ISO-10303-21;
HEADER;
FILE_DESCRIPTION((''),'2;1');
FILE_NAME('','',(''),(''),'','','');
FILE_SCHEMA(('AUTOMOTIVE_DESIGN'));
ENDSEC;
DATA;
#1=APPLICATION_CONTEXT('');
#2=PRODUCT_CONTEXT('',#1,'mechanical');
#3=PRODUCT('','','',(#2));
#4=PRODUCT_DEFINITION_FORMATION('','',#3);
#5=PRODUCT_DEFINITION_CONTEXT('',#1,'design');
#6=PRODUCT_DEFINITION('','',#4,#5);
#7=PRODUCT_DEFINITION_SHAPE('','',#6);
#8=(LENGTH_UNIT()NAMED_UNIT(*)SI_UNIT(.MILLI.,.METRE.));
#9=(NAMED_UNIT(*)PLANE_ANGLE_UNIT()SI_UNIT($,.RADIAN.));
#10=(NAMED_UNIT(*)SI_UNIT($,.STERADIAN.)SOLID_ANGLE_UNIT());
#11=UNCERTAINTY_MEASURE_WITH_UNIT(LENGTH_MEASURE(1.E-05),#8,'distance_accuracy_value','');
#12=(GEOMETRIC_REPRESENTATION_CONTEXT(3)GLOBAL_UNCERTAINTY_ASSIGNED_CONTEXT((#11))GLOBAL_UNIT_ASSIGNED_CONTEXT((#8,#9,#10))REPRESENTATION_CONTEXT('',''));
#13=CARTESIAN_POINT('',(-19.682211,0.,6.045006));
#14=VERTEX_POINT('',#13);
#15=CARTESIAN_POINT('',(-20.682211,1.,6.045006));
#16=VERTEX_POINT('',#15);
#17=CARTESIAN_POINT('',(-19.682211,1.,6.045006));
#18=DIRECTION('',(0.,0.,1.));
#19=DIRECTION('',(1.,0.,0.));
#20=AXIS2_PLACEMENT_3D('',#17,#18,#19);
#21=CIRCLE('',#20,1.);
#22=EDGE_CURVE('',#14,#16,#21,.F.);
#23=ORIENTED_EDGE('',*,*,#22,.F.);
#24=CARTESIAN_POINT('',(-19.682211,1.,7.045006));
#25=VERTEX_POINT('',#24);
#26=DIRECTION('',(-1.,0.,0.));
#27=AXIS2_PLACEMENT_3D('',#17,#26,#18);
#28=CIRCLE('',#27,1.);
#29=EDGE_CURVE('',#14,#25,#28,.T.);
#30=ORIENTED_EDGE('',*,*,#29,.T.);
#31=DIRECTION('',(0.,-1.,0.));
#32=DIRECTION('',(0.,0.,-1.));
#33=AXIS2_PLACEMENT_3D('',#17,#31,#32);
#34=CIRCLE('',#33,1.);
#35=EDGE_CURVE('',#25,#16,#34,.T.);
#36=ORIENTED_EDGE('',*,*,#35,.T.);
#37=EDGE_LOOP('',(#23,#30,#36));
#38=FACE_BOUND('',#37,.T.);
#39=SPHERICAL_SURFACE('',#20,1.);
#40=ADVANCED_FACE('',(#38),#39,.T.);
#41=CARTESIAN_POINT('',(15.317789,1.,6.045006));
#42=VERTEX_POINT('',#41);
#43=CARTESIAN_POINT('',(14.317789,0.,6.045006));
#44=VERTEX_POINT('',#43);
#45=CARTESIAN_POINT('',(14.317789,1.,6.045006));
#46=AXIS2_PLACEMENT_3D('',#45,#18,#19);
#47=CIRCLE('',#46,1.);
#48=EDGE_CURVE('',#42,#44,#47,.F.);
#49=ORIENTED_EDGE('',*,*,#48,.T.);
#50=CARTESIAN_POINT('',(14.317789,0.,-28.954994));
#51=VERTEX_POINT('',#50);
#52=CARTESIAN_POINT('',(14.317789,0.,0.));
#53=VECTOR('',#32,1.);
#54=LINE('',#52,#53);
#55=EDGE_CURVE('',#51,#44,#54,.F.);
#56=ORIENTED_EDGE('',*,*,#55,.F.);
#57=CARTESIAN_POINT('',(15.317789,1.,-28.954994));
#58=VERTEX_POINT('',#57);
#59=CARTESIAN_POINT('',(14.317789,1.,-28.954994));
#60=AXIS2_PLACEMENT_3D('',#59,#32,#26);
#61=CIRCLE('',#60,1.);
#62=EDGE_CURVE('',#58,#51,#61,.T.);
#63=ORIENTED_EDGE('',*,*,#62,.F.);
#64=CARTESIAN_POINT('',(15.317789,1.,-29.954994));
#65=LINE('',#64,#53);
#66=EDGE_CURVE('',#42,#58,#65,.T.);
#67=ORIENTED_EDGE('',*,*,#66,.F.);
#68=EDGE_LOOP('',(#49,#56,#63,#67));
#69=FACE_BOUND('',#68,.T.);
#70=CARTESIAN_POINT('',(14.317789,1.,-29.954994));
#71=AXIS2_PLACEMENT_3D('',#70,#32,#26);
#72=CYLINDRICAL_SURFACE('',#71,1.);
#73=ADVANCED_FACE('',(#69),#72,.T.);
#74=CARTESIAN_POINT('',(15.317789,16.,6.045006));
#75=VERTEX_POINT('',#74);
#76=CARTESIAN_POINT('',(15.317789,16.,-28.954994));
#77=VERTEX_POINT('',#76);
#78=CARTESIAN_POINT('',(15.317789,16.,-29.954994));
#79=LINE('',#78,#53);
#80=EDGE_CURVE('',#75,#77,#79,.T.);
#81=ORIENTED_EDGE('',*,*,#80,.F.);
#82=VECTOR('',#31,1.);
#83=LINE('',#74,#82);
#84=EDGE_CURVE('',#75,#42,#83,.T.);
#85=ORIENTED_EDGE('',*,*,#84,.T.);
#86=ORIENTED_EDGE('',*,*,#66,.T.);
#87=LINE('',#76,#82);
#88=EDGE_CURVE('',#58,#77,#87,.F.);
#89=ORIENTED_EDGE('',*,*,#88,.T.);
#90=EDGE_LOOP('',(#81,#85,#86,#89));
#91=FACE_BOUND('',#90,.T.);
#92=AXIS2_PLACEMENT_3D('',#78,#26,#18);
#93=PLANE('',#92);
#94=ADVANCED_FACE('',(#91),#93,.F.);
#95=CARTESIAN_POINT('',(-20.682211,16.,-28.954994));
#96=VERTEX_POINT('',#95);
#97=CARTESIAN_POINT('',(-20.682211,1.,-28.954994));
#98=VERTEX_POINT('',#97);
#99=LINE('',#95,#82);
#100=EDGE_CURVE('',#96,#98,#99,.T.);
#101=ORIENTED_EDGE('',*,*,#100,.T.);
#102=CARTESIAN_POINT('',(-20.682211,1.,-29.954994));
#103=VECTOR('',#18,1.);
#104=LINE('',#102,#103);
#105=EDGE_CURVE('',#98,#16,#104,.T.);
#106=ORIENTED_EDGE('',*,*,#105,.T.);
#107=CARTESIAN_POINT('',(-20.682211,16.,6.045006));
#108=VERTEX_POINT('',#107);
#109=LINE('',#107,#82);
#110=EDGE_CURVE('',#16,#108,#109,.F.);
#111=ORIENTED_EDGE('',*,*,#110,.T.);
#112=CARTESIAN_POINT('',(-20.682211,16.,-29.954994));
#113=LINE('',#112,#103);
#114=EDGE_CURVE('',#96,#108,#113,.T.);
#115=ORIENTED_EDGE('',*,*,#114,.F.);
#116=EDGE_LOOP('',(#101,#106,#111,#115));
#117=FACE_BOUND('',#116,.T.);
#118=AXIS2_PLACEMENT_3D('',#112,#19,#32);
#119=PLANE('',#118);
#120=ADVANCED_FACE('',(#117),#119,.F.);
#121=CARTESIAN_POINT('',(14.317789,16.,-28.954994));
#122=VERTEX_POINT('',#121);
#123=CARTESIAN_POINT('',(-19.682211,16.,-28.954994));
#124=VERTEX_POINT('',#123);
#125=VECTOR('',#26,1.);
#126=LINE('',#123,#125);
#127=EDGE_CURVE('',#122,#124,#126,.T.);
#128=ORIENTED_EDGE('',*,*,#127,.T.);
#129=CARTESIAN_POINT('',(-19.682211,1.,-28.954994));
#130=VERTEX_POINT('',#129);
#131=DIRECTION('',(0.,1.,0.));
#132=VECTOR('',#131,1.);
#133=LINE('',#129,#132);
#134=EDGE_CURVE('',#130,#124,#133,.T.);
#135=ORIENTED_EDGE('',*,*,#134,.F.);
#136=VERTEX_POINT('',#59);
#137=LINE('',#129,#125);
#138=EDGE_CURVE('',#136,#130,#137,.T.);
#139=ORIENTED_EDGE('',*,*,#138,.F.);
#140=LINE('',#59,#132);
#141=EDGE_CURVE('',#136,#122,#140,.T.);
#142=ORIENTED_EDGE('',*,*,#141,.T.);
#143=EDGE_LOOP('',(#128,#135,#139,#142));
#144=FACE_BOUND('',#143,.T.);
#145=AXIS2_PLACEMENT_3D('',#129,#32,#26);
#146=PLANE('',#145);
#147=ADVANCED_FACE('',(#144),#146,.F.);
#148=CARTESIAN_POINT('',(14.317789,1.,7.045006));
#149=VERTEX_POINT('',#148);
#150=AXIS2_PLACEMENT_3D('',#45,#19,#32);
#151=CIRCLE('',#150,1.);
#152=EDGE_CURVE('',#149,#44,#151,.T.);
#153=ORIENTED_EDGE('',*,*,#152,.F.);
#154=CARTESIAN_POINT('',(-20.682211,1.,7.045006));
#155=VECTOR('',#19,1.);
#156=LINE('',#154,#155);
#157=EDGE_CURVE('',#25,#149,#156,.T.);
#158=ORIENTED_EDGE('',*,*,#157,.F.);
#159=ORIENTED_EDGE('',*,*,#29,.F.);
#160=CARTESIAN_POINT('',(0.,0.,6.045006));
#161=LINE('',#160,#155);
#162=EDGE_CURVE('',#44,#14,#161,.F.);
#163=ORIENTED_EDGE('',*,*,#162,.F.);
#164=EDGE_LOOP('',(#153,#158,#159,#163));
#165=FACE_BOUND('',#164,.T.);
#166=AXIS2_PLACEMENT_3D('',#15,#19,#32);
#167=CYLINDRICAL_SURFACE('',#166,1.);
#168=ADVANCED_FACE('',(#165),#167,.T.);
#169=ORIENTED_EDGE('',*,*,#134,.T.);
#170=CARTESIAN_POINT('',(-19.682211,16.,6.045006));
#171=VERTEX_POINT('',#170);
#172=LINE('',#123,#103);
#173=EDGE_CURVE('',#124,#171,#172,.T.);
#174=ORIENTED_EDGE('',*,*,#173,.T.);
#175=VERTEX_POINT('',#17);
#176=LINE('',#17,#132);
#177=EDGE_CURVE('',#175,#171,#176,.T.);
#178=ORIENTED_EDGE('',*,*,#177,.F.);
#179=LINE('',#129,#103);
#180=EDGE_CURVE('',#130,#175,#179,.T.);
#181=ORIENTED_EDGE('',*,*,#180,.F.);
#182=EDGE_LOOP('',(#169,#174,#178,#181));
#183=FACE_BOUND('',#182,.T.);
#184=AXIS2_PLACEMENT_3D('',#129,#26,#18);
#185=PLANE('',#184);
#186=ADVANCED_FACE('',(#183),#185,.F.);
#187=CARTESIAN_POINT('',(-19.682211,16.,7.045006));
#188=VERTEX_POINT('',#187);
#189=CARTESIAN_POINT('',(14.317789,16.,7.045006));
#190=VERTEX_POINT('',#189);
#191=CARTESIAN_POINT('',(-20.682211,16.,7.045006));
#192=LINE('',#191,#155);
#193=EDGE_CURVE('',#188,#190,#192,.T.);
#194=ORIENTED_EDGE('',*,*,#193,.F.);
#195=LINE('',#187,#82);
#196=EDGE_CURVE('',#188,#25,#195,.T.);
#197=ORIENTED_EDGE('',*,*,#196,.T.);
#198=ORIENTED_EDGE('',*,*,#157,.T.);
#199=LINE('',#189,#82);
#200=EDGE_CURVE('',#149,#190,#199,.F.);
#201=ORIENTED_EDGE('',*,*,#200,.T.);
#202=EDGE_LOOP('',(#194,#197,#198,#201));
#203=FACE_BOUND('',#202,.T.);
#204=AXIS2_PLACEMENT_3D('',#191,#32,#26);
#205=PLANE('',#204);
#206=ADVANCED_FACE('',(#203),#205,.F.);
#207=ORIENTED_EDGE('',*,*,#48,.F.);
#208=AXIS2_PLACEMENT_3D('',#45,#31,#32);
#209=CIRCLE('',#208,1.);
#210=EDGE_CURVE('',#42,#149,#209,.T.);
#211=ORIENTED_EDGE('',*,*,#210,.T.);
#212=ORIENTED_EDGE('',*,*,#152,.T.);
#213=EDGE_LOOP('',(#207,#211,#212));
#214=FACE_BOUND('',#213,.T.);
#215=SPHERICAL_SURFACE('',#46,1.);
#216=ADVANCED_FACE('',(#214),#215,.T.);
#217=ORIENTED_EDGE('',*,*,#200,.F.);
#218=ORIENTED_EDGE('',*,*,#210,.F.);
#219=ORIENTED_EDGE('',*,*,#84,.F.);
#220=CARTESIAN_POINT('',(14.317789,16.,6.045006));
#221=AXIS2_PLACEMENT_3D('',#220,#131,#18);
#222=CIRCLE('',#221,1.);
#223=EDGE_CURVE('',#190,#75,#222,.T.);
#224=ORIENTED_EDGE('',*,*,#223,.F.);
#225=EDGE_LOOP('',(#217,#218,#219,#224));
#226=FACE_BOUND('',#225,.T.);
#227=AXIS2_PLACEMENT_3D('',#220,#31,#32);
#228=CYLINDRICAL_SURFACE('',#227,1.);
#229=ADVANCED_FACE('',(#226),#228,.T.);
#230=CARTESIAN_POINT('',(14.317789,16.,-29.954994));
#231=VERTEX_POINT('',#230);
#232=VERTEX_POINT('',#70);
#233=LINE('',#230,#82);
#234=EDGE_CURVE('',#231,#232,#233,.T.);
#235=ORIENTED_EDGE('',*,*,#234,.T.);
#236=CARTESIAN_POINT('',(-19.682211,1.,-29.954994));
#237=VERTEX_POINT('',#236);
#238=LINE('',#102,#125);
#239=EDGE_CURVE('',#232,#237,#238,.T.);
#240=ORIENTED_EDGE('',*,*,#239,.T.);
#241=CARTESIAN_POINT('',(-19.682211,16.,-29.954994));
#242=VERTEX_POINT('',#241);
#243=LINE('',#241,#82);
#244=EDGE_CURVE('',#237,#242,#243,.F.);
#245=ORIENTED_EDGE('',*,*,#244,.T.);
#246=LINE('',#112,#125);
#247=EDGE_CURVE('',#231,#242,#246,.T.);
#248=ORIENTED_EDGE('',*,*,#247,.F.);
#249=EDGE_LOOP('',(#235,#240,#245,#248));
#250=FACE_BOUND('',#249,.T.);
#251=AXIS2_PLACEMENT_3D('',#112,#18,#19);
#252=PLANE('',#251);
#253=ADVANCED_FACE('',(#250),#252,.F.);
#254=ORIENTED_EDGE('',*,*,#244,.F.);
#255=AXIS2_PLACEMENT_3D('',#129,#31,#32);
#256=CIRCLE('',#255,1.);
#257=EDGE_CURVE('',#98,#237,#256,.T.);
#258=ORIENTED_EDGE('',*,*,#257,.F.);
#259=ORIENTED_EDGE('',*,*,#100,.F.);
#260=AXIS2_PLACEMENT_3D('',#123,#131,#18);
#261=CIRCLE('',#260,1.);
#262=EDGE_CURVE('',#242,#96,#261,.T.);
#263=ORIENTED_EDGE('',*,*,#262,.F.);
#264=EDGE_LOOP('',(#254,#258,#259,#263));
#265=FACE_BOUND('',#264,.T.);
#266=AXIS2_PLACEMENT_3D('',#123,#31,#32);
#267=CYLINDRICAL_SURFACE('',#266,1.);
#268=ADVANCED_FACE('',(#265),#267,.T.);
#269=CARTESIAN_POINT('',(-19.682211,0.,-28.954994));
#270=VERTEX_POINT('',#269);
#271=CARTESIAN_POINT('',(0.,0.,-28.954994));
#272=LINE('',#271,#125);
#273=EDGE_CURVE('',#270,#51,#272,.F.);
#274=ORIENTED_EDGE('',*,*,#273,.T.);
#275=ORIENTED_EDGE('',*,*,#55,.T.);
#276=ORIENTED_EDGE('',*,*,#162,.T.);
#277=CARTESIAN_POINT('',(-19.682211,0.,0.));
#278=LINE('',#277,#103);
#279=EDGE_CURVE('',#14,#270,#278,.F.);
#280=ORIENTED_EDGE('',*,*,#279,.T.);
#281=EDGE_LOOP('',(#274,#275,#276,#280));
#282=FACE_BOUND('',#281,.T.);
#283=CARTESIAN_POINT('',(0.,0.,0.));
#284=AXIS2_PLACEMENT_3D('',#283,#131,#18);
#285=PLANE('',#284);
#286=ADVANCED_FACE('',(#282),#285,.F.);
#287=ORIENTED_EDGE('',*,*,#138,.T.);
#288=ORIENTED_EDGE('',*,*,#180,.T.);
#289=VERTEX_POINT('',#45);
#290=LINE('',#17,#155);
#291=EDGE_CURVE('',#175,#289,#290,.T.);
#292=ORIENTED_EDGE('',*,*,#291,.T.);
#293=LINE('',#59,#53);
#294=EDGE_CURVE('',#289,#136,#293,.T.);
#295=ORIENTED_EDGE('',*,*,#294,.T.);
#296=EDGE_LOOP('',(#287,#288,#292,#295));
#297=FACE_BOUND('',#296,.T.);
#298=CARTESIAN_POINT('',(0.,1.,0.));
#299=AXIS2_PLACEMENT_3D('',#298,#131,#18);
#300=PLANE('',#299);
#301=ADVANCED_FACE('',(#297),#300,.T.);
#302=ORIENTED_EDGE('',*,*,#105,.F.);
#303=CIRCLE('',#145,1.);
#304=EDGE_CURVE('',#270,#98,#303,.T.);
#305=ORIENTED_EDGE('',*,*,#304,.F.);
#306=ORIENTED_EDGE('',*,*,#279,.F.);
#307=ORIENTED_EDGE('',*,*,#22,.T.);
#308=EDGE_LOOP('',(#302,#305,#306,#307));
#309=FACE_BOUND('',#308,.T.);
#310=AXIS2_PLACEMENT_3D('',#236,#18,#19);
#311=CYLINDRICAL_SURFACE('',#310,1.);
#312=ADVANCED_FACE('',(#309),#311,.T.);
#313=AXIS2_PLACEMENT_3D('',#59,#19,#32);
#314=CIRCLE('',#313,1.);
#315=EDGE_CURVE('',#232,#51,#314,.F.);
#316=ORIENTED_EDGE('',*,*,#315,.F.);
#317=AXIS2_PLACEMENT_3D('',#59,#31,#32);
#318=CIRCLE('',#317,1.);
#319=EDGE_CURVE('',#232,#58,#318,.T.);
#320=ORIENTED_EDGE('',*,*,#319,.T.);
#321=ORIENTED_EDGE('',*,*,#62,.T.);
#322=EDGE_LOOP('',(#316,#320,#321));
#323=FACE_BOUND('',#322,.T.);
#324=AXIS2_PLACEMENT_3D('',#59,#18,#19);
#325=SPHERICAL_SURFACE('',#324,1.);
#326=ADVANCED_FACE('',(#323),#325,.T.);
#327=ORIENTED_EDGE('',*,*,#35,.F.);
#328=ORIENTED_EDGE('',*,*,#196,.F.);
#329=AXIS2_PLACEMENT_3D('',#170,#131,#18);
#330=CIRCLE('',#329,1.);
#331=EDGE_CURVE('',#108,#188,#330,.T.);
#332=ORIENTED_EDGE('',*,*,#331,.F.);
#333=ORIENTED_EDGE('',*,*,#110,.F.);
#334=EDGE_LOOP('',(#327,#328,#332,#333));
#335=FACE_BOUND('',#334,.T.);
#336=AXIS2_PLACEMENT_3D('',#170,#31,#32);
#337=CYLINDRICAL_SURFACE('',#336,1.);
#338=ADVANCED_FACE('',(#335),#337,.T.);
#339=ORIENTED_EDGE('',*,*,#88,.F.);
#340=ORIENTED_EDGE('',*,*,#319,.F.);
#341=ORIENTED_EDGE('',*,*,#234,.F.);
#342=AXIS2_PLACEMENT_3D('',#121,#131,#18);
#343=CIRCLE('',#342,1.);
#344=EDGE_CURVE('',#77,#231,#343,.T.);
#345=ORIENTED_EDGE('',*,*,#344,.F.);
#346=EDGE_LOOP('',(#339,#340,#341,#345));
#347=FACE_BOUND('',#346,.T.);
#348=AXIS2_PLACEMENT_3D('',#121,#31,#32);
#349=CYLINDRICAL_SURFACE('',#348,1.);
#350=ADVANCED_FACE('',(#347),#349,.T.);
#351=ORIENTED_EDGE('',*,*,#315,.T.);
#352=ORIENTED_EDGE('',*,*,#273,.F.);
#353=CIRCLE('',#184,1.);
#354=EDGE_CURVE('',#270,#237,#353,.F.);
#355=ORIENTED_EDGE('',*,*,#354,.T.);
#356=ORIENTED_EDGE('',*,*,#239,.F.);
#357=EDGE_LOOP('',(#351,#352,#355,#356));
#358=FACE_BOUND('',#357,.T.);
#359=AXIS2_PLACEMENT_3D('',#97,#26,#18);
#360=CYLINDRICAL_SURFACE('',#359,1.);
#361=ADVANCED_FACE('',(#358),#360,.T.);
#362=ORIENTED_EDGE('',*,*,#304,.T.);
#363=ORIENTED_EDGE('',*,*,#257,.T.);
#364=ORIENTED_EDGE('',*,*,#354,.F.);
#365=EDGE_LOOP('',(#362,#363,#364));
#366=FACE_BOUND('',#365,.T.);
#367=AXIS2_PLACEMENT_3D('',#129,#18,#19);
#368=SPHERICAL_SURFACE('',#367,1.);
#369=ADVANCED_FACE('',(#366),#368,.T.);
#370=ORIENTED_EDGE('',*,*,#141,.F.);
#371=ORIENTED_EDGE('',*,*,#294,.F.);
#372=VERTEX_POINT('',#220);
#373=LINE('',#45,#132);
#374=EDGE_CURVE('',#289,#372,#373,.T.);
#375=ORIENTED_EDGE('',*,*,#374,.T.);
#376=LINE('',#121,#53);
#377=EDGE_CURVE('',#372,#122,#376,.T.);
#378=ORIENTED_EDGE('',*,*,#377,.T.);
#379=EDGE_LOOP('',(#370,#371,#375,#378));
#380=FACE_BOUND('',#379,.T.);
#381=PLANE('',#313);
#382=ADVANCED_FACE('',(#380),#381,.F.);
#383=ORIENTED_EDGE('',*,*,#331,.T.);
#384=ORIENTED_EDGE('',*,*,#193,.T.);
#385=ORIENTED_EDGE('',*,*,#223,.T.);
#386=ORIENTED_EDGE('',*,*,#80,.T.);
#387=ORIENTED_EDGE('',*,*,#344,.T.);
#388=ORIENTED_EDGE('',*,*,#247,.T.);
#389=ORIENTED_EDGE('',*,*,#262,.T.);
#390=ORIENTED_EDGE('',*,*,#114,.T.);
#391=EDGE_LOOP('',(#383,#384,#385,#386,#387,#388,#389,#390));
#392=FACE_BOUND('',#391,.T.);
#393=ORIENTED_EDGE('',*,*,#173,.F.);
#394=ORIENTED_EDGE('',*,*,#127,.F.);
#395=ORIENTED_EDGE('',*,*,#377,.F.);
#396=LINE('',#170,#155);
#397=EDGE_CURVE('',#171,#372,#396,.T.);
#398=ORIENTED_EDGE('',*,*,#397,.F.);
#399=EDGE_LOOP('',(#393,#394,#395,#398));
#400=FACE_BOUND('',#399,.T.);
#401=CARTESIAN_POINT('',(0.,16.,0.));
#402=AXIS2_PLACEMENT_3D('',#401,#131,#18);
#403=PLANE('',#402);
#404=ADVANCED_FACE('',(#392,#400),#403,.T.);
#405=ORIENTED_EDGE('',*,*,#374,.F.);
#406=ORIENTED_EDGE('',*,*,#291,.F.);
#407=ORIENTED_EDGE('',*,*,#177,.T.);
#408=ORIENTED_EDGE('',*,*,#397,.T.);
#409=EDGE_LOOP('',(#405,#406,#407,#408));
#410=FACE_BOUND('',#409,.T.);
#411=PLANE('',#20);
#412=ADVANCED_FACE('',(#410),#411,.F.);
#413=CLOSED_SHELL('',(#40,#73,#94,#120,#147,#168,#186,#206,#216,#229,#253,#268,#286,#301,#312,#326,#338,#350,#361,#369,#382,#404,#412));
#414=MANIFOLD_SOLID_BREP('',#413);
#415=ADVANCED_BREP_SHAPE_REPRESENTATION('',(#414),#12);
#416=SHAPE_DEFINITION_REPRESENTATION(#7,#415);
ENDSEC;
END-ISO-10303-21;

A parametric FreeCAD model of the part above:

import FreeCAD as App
import Part
import Sketcher
from FreeCAD import Vector


def edges_at(feature, points):
    """Names of the edges that pass closest to the given points."""
    edges = feature.Shape.Edges
    near = lambda p: min(range(len(edges)), key=lambda i: edges[i].distToShape(Part.Vertex(*p))[0])
    return sorted({f"Edge{near(p) + 1}" for p in points})


def add_polygon(sketch, points):
    """Adds a closed chain of lines whose ends are joined by coincident constraints."""
    first, n = sketch.GeometryCount, len(points)
    for a, b in zip(points, points[1:] + points[:1]):
        sketch.addGeometry(Part.LineSegment(App.Vector(*a, 0), App.Vector(*b, 0)), False)
    for i in range(n):
        sketch.addConstraint(Sketcher.Constraint("Coincident", first + i, 2, first + (i + 1) % n, 1))

doc = App.newDocument("Part")
body = doc.addObject("PartDesign::Body", "Body")

# Sketch on XZ plane
sketch1 = doc.addObject("Sketcher::SketchObject", "Sketch")
body.addObject(sketch1)
sketch1.AttachmentSupport = (doc.XZ_Plane, [""])
sketch1.MapMode = "FlatFace"
add_polygon(sketch1, [(-21, -30), (-21, 7), (15, 7), (15, -30)])  # lines 0-3
sketch1.addConstraint([
    Sketcher.Constraint("Vertical", 0),
    Sketcher.Constraint("Horizontal", 1),
    Sketcher.Constraint("Vertical", 2),
    Sketcher.Constraint("Horizontal", 3),
    Sketcher.Constraint("DistanceX", 1, 1, 1, 2, 36.0),
    Sketcher.Constraint("DistanceY", 0, 1, 0, 2, 37.0),
    Sketcher.Constraint("DistanceX", 0, 2, -1, 1, 20.682211),
    Sketcher.Constraint("DistanceY", -1, 1, 0, 2, 7.045006),
])
pad1 = doc.addObject("PartDesign::Pad", "Pad")
body.addObject(pad1)
pad1.Profile = sketch1
pad1.Length = 16
pad1.Reversed = True

# Sketch on XZ plane
sketch2 = doc.addObject("Sketcher::SketchObject", "Sketch001")
body.addObject(sketch2)
sketch2.AttachmentSupport = (doc.XZ_Plane, [""])
sketch2.MapMode = "FlatFace"
sketch2.AttachmentOffset = App.Placement(Vector(0, 0, -16), App.Rotation())
add_polygon(sketch2, [(-20, -29), (-20, 6), (14, 6), (14, -29)])  # lines 0-3
sketch2.addConstraint([
    Sketcher.Constraint("Vertical", 0),
    Sketcher.Constraint("Horizontal", 1),
    Sketcher.Constraint("Vertical", 2),
    Sketcher.Constraint("Horizontal", 3),
    Sketcher.Constraint("DistanceX", 1, 1, 1, 2, 34.0),
    Sketcher.Constraint("DistanceY", 0, 1, 0, 2, 35.0),
    Sketcher.Constraint("DistanceX", 0, 2, -1, 1, 19.682211),
    Sketcher.Constraint("DistanceY", -1, 1, 0, 2, 6.045006),
])
pocket1 = doc.addObject("PartDesign::Pocket", "Pocket")
body.addObject(pocket1)
pocket1.Profile = sketch2
pocket1.Length = 15
pocket1.Reversed = True
doc.recompute()

fillet = doc.addObject("PartDesign::Fillet", "Fillet")
body.addObject(fillet)
fillet.Base = (pocket1, edges_at(pocket1, [
    (-2.682, 0, -29.955),
    (15.318, 0, -11.455),
    (-2.682, 0, 7.045),
    (-20.682, 0, -11.455),
    (-20.682, 8, -29.955),
    (15.318, 8, -29.955),
    (15.318, 8, 7.045),
    (-20.682, 8, 7.045),
]))
fillet.Radius = 1

doc.recompute()
